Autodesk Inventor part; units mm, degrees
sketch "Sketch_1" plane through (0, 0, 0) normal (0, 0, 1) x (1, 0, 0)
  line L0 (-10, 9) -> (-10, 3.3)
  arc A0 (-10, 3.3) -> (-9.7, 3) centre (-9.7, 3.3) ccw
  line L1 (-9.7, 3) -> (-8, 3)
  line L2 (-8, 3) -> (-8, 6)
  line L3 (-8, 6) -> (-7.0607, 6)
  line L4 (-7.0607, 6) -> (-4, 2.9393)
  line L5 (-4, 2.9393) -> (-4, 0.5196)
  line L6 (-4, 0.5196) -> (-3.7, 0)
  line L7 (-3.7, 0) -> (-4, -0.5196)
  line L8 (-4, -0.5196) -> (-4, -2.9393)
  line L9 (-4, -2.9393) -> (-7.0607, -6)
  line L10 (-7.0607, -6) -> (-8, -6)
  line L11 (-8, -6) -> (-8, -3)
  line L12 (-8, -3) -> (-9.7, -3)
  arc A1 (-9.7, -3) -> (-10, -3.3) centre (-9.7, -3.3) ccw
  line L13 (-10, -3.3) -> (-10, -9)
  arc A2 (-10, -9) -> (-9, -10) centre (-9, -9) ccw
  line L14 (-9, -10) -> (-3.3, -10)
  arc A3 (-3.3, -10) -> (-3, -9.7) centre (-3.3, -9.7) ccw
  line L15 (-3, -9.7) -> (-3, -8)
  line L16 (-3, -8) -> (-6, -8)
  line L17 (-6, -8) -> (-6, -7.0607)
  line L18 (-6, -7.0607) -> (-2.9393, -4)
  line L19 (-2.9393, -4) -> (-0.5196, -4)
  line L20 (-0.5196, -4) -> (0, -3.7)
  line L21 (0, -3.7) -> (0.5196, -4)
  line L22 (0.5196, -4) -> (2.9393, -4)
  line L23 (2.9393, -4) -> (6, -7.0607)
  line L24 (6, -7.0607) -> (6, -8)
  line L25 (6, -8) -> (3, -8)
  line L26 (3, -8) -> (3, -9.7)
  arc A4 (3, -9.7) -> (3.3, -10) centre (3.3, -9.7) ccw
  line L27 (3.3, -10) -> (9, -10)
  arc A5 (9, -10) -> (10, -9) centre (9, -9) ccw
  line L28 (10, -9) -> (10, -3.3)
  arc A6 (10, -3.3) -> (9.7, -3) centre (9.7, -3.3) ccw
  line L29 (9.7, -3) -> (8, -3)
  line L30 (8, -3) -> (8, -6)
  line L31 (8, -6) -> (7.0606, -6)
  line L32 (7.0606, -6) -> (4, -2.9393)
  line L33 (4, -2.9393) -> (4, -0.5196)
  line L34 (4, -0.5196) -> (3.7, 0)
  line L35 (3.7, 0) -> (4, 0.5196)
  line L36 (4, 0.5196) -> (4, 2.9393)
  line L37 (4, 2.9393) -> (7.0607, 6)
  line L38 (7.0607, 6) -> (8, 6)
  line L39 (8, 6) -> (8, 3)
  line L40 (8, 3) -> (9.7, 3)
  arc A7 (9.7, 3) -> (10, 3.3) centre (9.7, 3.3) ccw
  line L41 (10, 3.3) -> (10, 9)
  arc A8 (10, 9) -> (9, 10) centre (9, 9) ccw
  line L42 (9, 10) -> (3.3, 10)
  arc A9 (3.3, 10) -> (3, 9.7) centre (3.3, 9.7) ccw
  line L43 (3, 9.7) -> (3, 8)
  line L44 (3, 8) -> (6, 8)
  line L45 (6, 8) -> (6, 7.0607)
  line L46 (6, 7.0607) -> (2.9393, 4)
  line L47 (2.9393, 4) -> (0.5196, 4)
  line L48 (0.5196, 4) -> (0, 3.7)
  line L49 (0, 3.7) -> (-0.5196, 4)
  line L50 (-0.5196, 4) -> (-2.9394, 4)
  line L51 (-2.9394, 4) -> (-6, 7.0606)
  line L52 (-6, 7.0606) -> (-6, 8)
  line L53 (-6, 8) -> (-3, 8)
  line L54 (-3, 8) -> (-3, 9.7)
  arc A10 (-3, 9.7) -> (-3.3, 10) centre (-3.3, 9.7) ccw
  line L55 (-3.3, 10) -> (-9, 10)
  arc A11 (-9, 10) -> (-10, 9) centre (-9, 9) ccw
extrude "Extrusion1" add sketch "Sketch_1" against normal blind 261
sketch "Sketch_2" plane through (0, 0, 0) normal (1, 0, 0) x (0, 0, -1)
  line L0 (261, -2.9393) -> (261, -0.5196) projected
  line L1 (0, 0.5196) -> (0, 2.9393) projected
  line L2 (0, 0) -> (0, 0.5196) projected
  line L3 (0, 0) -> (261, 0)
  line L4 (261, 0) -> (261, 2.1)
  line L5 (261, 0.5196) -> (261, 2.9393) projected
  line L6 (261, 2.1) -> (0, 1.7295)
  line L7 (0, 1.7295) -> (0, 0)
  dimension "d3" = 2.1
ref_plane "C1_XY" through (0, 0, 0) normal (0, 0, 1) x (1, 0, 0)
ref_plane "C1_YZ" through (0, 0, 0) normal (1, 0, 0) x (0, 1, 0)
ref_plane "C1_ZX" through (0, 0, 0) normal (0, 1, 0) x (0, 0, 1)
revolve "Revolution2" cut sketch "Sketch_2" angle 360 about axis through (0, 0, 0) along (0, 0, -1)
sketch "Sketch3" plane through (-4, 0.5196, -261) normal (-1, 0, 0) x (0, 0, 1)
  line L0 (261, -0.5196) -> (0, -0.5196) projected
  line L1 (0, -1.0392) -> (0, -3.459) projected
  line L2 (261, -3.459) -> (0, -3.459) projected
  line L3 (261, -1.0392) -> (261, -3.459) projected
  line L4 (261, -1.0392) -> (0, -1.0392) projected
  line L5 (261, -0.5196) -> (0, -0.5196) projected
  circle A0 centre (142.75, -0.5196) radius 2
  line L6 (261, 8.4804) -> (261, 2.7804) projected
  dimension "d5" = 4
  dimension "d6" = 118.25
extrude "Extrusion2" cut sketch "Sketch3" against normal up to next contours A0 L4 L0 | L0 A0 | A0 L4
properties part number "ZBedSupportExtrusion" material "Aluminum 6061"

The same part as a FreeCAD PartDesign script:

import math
import FreeCAD as App
import Part
import Sketcher
Q = App.Units.Quantity


def add_polygon(sketch, points):
    """Adds a closed chain of lines whose ends are joined by coincident constraints."""
    first, n = sketch.GeometryCount, len(points)
    for a, b in zip(points, points[1:] + points[:1]):
        sketch.addGeometry(Part.LineSegment(App.Vector(*a, 0), App.Vector(*b, 0)), False)
    for i in range(n):
        sketch.addConstraint(Sketcher.Constraint("Coincident", first + i, 2, first + (i + 1) % n, 1))

doc = App.newDocument("Part")
body = doc.addObject("PartDesign::Body", "Body")

# Sketch on XY plane
sketch1 = doc.addObject("Sketcher::SketchObject", "Sketch")
body.addObject(sketch1)
sketch1.AttachmentSupport = (doc.XY_Plane, [""])
sketch1.MapMode = "FlatFace"
sketch1.addGeometry([
    Part.ArcOfCircle(Part.Circle(App.Vector(-9, 9, 0), App.Vector(0, 0, 1), 1), math.radians(90), math.radians(180)),  # 0
    Part.LineSegment(App.Vector(-10, 9, 0), App.Vector(-10, 3.3, 0)),  # 1
    Part.ArcOfCircle(Part.Circle(App.Vector(-9.7, 3.3, 0), App.Vector(0, 0, 1), 0.3), math.radians(180), math.radians(270)),  # 2
    Part.LineSegment(App.Vector(-9.7, 3, 0), App.Vector(-8, 3, 0)),  # 3
    Part.LineSegment(App.Vector(-8, 3, 0), App.Vector(-8, 6, 0)),  # 4
    Part.LineSegment(App.Vector(-8, 6, 0), App.Vector(-7.06, 6, 0)),  # 5
    Part.LineSegment(App.Vector(-7.06, 6, 0), App.Vector(-4, 2.94, 0)),  # 6
    Part.LineSegment(App.Vector(-4, 2.94, 0), App.Vector(-4, 0.52, 0)),  # 7
    Part.LineSegment(App.Vector(-4, 0.52, 0), App.Vector(-3.7, 0, 0)),  # 8
    Part.LineSegment(App.Vector(-3.7, 0, 0), App.Vector(-4, -0.52, 0)),  # 9
    Part.LineSegment(App.Vector(-4, -0.52, 0), App.Vector(-4, -2.94, 0)),  # 10
    Part.LineSegment(App.Vector(-4, -2.94, 0), App.Vector(-7.06, -6, 0)),  # 11
    Part.LineSegment(App.Vector(-7.06, -6, 0), App.Vector(-8, -6, 0)),  # 12
    Part.LineSegment(App.Vector(-8, -6, 0), App.Vector(-8, -3, 0)),  # 13
    Part.LineSegment(App.Vector(-8, -3, 0), App.Vector(-9.7, -3, 0)),  # 14
    Part.ArcOfCircle(Part.Circle(App.Vector(-9.7, -3.3, 0), App.Vector(0, 0, 1), 0.3), math.radians(90), math.radians(180)),  # 15
    Part.LineSegment(App.Vector(-10, -3.3, 0), App.Vector(-10, -9, 0)),  # 16
    Part.ArcOfCircle(Part.Circle(App.Vector(-9, -9, 0), App.Vector(0, 0, 1), 1), math.radians(180), math.radians(270)),  # 17
    Part.LineSegment(App.Vector(-9, -10, 0), App.Vector(-3.3, -10, 0)),  # 18
    Part.ArcOfCircle(Part.Circle(App.Vector(-3.3, -9.7, 0), App.Vector(0, 0, 1), 0.3), math.radians(-90), math.radians(0)),  # 19
    Part.LineSegment(App.Vector(-3, -9.7, 0), App.Vector(-3, -8, 0)),  # 20
    Part.LineSegment(App.Vector(-3, -8, 0), App.Vector(-6, -8, 0)),  # 21
    Part.LineSegment(App.Vector(-6, -8, 0), App.Vector(-6, -7.06, 0)),  # 22
    Part.LineSegment(App.Vector(-6, -7.06, 0), App.Vector(-2.94, -4, 0)),  # 23
    Part.LineSegment(App.Vector(-2.94, -4, 0), App.Vector(-0.52, -4, 0)),  # 24
    Part.LineSegment(App.Vector(-0.52, -4, 0), App.Vector(0, -3.7, 0)),  # 25
    Part.LineSegment(App.Vector(0, -3.7, 0), App.Vector(0.52, -4, 0)),  # 26
    Part.LineSegment(App.Vector(0.52, -4, 0), App.Vector(2.94, -4, 0)),  # 27
    Part.LineSegment(App.Vector(2.94, -4, 0), App.Vector(6, -7.06, 0)),  # 28
    Part.LineSegment(App.Vector(6, -7.06, 0), App.Vector(6, -8, 0)),  # 29
    Part.LineSegment(App.Vector(6, -8, 0), App.Vector(3, -8, 0)),  # 30
    Part.LineSegment(App.Vector(3, -8, 0), App.Vector(3, -9.7, 0)),  # 31
    Part.ArcOfCircle(Part.Circle(App.Vector(3.3, -9.7, 0), App.Vector(0, 0, 1), 0.3), math.radians(180), math.radians(270)),  # 32
    Part.LineSegment(App.Vector(3.3, -10, 0), App.Vector(9, -10, 0)),  # 33
    Part.ArcOfCircle(Part.Circle(App.Vector(9, -9, 0), App.Vector(0, 0, 1), 1), math.radians(-90), math.radians(0)),  # 34
    Part.LineSegment(App.Vector(10, -9, 0), App.Vector(10, -3.3, 0)),  # 35
    Part.ArcOfCircle(Part.Circle(App.Vector(9.7, -3.3, 0), App.Vector(0, 0, 1), 0.3), math.radians(0), math.radians(90)),  # 36
    Part.LineSegment(App.Vector(9.7, -3, 0), App.Vector(8, -3, 0)),  # 37
    Part.LineSegment(App.Vector(8, -3, 0), App.Vector(8, -6, 0)),  # 38
    Part.LineSegment(App.Vector(8, -6, 0), App.Vector(7.06, -6, 0)),  # 39
    Part.LineSegment(App.Vector(7.06, -6, 0), App.Vector(4, -2.94, 0)),  # 40
    Part.LineSegment(App.Vector(4, -2.94, 0), App.Vector(4, -0.52, 0)),  # 41
    Part.LineSegment(App.Vector(4, -0.52, 0), App.Vector(3.7, 0, 0)),  # 42
    Part.LineSegment(App.Vector(3.7, 0, 0), App.Vector(4, 0.52, 0)),  # 43
    Part.LineSegment(App.Vector(4, 0.52, 0), App.Vector(4, 2.94, 0)),  # 44
    Part.LineSegment(App.Vector(4, 2.94, 0), App.Vector(7.06, 6, 0)),  # 45
    Part.LineSegment(App.Vector(7.06, 6, 0), App.Vector(8, 6, 0)),  # 46
    Part.LineSegment(App.Vector(8, 6, 0), App.Vector(8, 3, 0)),  # 47
    Part.LineSegment(App.Vector(8, 3, 0), App.Vector(9.7, 3, 0)),  # 48
    Part.ArcOfCircle(Part.Circle(App.Vector(9.7, 3.3, 0), App.Vector(0, 0, 1), 0.3), math.radians(-90), math.radians(0)),  # 49
    Part.LineSegment(App.Vector(10, 3.3, 0), App.Vector(10, 9, 0)),  # 50
    Part.ArcOfCircle(Part.Circle(App.Vector(9, 9, 0), App.Vector(0, 0, 1), 1), math.radians(0), math.radians(90)),  # 51
    Part.LineSegment(App.Vector(9, 10, 0), App.Vector(3.3, 10, 0)),  # 52
    Part.ArcOfCircle(Part.Circle(App.Vector(3.3, 9.7, 0), App.Vector(0, 0, 1), 0.3), math.radians(90), math.radians(180)),  # 53
    Part.LineSegment(App.Vector(3, 9.7, 0), App.Vector(3, 8, 0)),  # 54
    Part.LineSegment(App.Vector(3, 8, 0), App.Vector(6, 8, 0)),  # 55
    Part.LineSegment(App.Vector(6, 8, 0), App.Vector(6, 7.06, 0)),  # 56
    Part.LineSegment(App.Vector(6, 7.06, 0), App.Vector(2.94, 4, 0)),  # 57
    Part.LineSegment(App.Vector(2.94, 4, 0), App.Vector(0.52, 4, 0)),  # 58
    Part.LineSegment(App.Vector(0.52, 4, 0), App.Vector(0, 3.7, 0)),  # 59
    Part.LineSegment(App.Vector(0, 3.7, 0), App.Vector(-0.52, 4, 0)),  # 60
    Part.LineSegment(App.Vector(-0.52, 4, 0), App.Vector(-2.94, 4, 0)),  # 61
    Part.LineSegment(App.Vector(-2.94, 4, 0), App.Vector(-6, 7.06, 0)),  # 62
    Part.LineSegment(App.Vector(-6, 7.06, 0), App.Vector(-6, 8, 0)),  # 63
    Part.LineSegment(App.Vector(-6, 8, 0), App.Vector(-3, 8, 0)),  # 64
    Part.LineSegment(App.Vector(-3, 8, 0), App.Vector(-3, 9.7, 0)),  # 65
    Part.ArcOfCircle(Part.Circle(App.Vector(-3.3, 9.7, 0), App.Vector(0, 0, 1), 0.3), math.radians(0), math.radians(90)),  # 66
    Part.LineSegment(App.Vector(-3.3, 10, 0), App.Vector(-9, 10, 0)),  # 67
], False)
sketch1.addConstraint([
    Sketcher.Constraint("Tangent", 0, 2, 1, 1),
    Sketcher.Constraint("Tangent", 1, 2, 2, 1),
    Sketcher.Constraint("Tangent", 2, 2, 3, 1),
    Sketcher.Constraint("Coincident", 3, 2, 4, 1),
    Sketcher.Constraint("Coincident", 4, 2, 5, 1),
    Sketcher.Constraint("Coincident", 5, 2, 6, 1),
    Sketcher.Constraint("Coincident", 6, 2, 7, 1),
    Sketcher.Constraint("Coincident", 7, 2, 8, 1),
    Sketcher.Constraint("Coincident", 8, 2, 9, 1),
    Sketcher.Constraint("Coincident", 9, 2, 10, 1),
    Sketcher.Constraint("Coincident", 10, 2, 11, 1),
    Sketcher.Constraint("Coincident", 11, 2, 12, 1),
    Sketcher.Constraint("Coincident", 12, 2, 13, 1),
    Sketcher.Constraint("Coincident", 13, 2, 14, 1),
    Sketcher.Constraint("Tangent", 14, 2, 15, 1),
    Sketcher.Constraint("Tangent", 15, 2, 16, 1),
    Sketcher.Constraint("Tangent", 16, 2, 17, 1),
    Sketcher.Constraint("Tangent", 17, 2, 18, 1),
    Sketcher.Constraint("Tangent", 18, 2, 19, 1),
    Sketcher.Constraint("Tangent", 19, 2, 20, 1),
    Sketcher.Constraint("Coincident", 20, 2, 21, 1),
    Sketcher.Constraint("Coincident", 21, 2, 22, 1),
    Sketcher.Constraint("Coincident", 22, 2, 23, 1),
    Sketcher.Constraint("Coincident", 23, 2, 24, 1),
    Sketcher.Constraint("Coincident", 24, 2, 25, 1),
    Sketcher.Constraint("Coincident", 25, 2, 26, 1),
    Sketcher.Constraint("Coincident", 26, 2, 27, 1),
    Sketcher.Constraint("Coincident", 27, 2, 28, 1),
    Sketcher.Constraint("Coincident", 28, 2, 29, 1),
    Sketcher.Constraint("Coincident", 29, 2, 30, 1),
    Sketcher.Constraint("Coincident", 30, 2, 31, 1),
    Sketcher.Constraint("Tangent", 31, 2, 32, 1),
    Sketcher.Constraint("Tangent", 32, 2, 33, 1),
    Sketcher.Constraint("Tangent", 33, 2, 34, 1),
    Sketcher.Constraint("Tangent", 34, 2, 35, 1),
    Sketcher.Constraint("Tangent", 35, 2, 36, 1),
    Sketcher.Constraint("Tangent", 36, 2, 37, 1),
    Sketcher.Constraint("Coincident", 37, 2, 38, 1),
    Sketcher.Constraint("Coincident", 38, 2, 39, 1),
    Sketcher.Constraint("Coincident", 39, 2, 40, 1),
    Sketcher.Constraint("Coincident", 40, 2, 41, 1),
    Sketcher.Constraint("Coincident", 41, 2, 42, 1),
    Sketcher.Constraint("Coincident", 42, 2, 43, 1),
    Sketcher.Constraint("Coincident", 43, 2, 44, 1),
    Sketcher.Constraint("Coincident", 44, 2, 45, 1),
    Sketcher.Constraint("Coincident", 45, 2, 46, 1),
    Sketcher.Constraint("Coincident", 46, 2, 47, 1),
    Sketcher.Constraint("Coincident", 47, 2, 48, 1),
    Sketcher.Constraint("Tangent", 48, 2, 49, 1),
    Sketcher.Constraint("Tangent", 49, 2, 50, 1),
    Sketcher.Constraint("Tangent", 50, 2, 51, 1),
    Sketcher.Constraint("Tangent", 51, 2, 52, 1),
    Sketcher.Constraint("Tangent", 52, 2, 53, 1),
    Sketcher.Constraint("Tangent", 53, 2, 54, 1),
    Sketcher.Constraint("Coincident", 54, 2, 55, 1),
    Sketcher.Constraint("Coincident", 55, 2, 56, 1),
    Sketcher.Constraint("Coincident", 56, 2, 57, 1),
    Sketcher.Constraint("Coincident", 57, 2, 58, 1),
    Sketcher.Constraint("Coincident", 58, 2, 59, 1),
    Sketcher.Constraint("Coincident", 59, 2, 60, 1),
    Sketcher.Constraint("Coincident", 60, 2, 61, 1),
    Sketcher.Constraint("Coincident", 61, 2, 62, 1),
    Sketcher.Constraint("Coincident", 62, 2, 63, 1),
    Sketcher.Constraint("Coincident", 63, 2, 64, 1),
    Sketcher.Constraint("Coincident", 64, 2, 65, 1),
    Sketcher.Constraint("Tangent", 65, 2, 66, 1),
    Sketcher.Constraint("Tangent", 66, 2, 67, 1),
    Sketcher.Constraint("Tangent", 67, 2, 0, 1),
    Sketcher.Constraint("Vertical", 1),
    Sketcher.Constraint("Horizontal", 3),
    Sketcher.Constraint("Vertical", 4),
    Sketcher.Constraint("Horizontal", 5),
    Sketcher.Constraint("Vertical", 7),
    Sketcher.Constraint("Vertical", 10),
    Sketcher.Constraint("Horizontal", 12),
    Sketcher.Constraint("Vertical", 13),
    Sketcher.Constraint("Horizontal", 14),
    Sketcher.Constraint("Vertical", 16),
    Sketcher.Constraint("Horizontal", 18),
    Sketcher.Constraint("Vertical", 20),
    Sketcher.Constraint("Horizontal", 21),
    Sketcher.Constraint("Vertical", 22),
    Sketcher.Constraint("Horizontal", 24),
    Sketcher.Constraint("Horizontal", 27),
    Sketcher.Constraint("Vertical", 29),
    Sketcher.Constraint("Horizontal", 30),
    Sketcher.Constraint("Vertical", 31),
    Sketcher.Constraint("Horizontal", 33),
    Sketcher.Constraint("Vertical", 35),
    Sketcher.Constraint("Horizontal", 37),
    Sketcher.Constraint("Vertical", 38),
    Sketcher.Constraint("Horizontal", 39),
    Sketcher.Constraint("Vertical", 41),
    Sketcher.Constraint("Vertical", 44),
    Sketcher.Constraint("Horizontal", 46),
    Sketcher.Constraint("Vertical", 47),
    Sketcher.Constraint("Horizontal", 48),
    Sketcher.Constraint("Vertical", 50),
    Sketcher.Constraint("Horizontal", 52),
    Sketcher.Constraint("Vertical", 54),
    Sketcher.Constraint("Horizontal", 55),
    Sketcher.Constraint("Vertical", 56),
    Sketcher.Constraint("Horizontal", 58),
    Sketcher.Constraint("Horizontal", 61),
    Sketcher.Constraint("Vertical", 63),
    Sketcher.Constraint("Horizontal", 64),
    Sketcher.Constraint("Vertical", 65),
    Sketcher.Constraint("Horizontal", 67),
    Sketcher.Constraint("Equal", 2, 15),
    Sketcher.Constraint("Equal", 0, 17),
    Sketcher.Constraint("Equal", 15, 19),
    Sketcher.Constraint("Equal", 19, 32),
    Sketcher.Constraint("Equal", 17, 34),
    Sketcher.Constraint("Equal", 32, 36),
    Sketcher.Constraint("Equal", 36, 49),
    Sketcher.Constraint("Equal", 34, 51),
    Sketcher.Constraint("Equal", 49, 53),
    Sketcher.Constraint("Equal", 53, 66),
    Sketcher.Constraint("Symmetric", 0, 3, 34, 3, -1, 1),
    Sketcher.Constraint("Symmetric", 15, 3, 49, 3, -1, 1),
    Sketcher.Constraint("Symmetric", 19, 3, 53, 3, -1, 1),
    Sketcher.Constraint("Symmetric", 3, 2, 37, 2, -1, 1),
    Sketcher.Constraint("Symmetric", 5, 2, 39, 2, -1, 1),
    Sketcher.Constraint("Symmetric", 6, 2, 40, 2, -1, 1),
    Sketcher.Constraint("Symmetric", 8, 2, 42, 2, -1, 1),
    Sketcher.Constraint("Symmetric", 9, 2, 43, 2, -1, 1),
    Sketcher.Constraint("Symmetric", 11, 2, 45, 2, -1, 1),
    Sketcher.Constraint("Symmetric", 21, 2, 55, 2, -1, 1),
    Sketcher.Constraint("Symmetric", 23, 2, 57, 2, -1, 1),
    Sketcher.Constraint("Symmetric", 25, 2, 59, 2, -1, 1),
    Sketcher.Constraint("Symmetric", 26, 2, 60, 2, -1, 1),
    Sketcher.Constraint("Symmetric", 28, 2, 62, 2, -1, 1),
    Sketcher.Constraint("Symmetric", 30, 2, 64, 2, -1, 1),
    Sketcher.Constraint("Symmetric", 19, 3, 32, 3, -2),
    Sketcher.Constraint("Symmetric", 15, 3, 36, 3, -2),
    Sketcher.Constraint("Symmetric", 24, 2, 26, 2, -2),
    Sketcher.Constraint("Symmetric", 22, 2, 28, 2, -2),
    Sketcher.Constraint("Symmetric", 12, 2, 38, 2, -2),
    Sketcher.Constraint("Symmetric", 10, 2, 40, 2, -2),
    Sketcher.Constraint("PointOnObject", 8, 2, -1),
    Sketcher.Constraint("PointOnObject", 25, 2, -2),
    Sketcher.Constraint("Perpendicular", 6, 11),
    Sketcher.Constraint("Parallel", 11, 23),
    Sketcher.Constraint("Perpendicular", 8, 25),
    Sketcher.Constraint("Perpendicular", 9, 26),
    Sketcher.Constraint("Perpendicular", 23, 28),
    Sketcher.Constraint("Perpendicular", 25, 42),
    Sketcher.Constraint("Perpendicular", 40, 45),
    Sketcher.Constraint("Parallel", 45, 57),
    Sketcher.Constraint("Perpendicular", 42, 59),
    Sketcher.Constraint("Perpendicular", 57, 62),
    Sketcher.Constraint("Horizontal", 21, 2, 29, 2),
    Sketcher.Constraint("Vertical", 5, 2, 11, 2),
    Sketcher.Constraint("Vertical", 38, 2, 46, 2),
    Sketcher.Constraint("Equal", 67, 1),
    Sketcher.Constraint("Equal", 64, 4),
    Sketcher.Constraint("Equal", 61, 7),
    Sketcher.Constraint("Equal", 48, 20),
    Sketcher.Constraint("Equal", 46, 22),
    Sketcher.Constraint("Equal", 11, 23),
    Sketcher.Constraint("Equal", 9, 25),
    Sketcher.Constraint("Radius", 0, 1.0),
    Sketcher.Constraint("Radius", 2, 0.3),
    Sketcher.Constraint("DistanceX", 21, 2, 21, 1, 3.0),
    Sketcher.Constraint("Angle", 8, Q("-59.9993 deg")),
    Sketcher.Constraint("DistanceX", 3, 1, 3, 2, 1.7),
    Sketcher.Constraint("DistanceX", 18, 1, 18, 2, 5.7),
    Sketcher.Constraint("DistanceX", 0, 3, -1, 1, 9.0),
    Sketcher.Constraint("DistanceX", 6, 2, -1, 1, 4.0),
    Sketcher.Constraint("Distance", 8, 0.6),
    Sketcher.Constraint("DistanceX", 5, 1, 5, 2, 0.9393),
])
pad1 = doc.addObject("PartDesign::Pad", "Pad")
body.addObject(pad1)
pad1.Profile = sketch1
pad1.Length = 261
pad1.Reversed = True

# Sketch on YZ plane
sketch2 = doc.addObject("Sketcher::SketchObject", "Sketch001")
body.addObject(sketch2)
sketch2.AttachmentSupport = (doc.YZ_Plane, [""])
sketch2.MapMode = "FlatFace"
add_polygon(sketch2, [(1.7, 0), (0, 0), (0, -261), (2.1, -261)])  # lines 0-3
sketch2.addConstraint([
    Sketcher.Constraint("Horizontal", 0),
    Sketcher.Constraint("Vertical", 1),
    Sketcher.Constraint("Horizontal", 2),
    Sketcher.Constraint("Coincident", 0, 2, -1, 1),
    Sketcher.Constraint("DistanceX", 2, 1, 2, 2, 2.1),
    Sketcher.Constraint("DistanceY", 1, 2, 1, 1, 261.0),
    Sketcher.Constraint("DistanceX", 0, 2, 0, 1, 1.7295),
])
groove = doc.addObject("PartDesign::Groove", "Groove")
body.addObject(groove)
groove.Profile = sketch2
groove.ReferenceAxis = (sketch2, ["V_Axis"])
groove.Angle = 360

# Sketch on YZ plane
sketch3 = doc.addObject("Sketcher::SketchObject", "Sketch002")
body.addObject(sketch3)
sketch3.AttachmentSupport = (doc.YZ_Plane, [""])
sketch3.MapMode = "FlatFace"
sketch3.AttachmentOffset = App.Placement(App.Vector(0, 0, -4), App.Rotation())
sketch3.addGeometry(Part.Circle(App.Vector(0, -118.2, 0), App.Vector(0, 0, 1), 2), False)
sketch3.addConstraint([
    Sketcher.Constraint("PointOnObject", 0, 3, -2),
    Sketcher.Constraint("Diameter", 0, 4.0),
    Sketcher.Constraint("DistanceY", 0, 3, -1, 1, 118.25),
])
pocket1 = doc.addObject("PartDesign::Pocket", "Pocket")
body.addObject(pocket1)
pocket1.Profile = sketch3
pocket1.Length = 8
pocket1.Reversed = True

doc.recompute()
